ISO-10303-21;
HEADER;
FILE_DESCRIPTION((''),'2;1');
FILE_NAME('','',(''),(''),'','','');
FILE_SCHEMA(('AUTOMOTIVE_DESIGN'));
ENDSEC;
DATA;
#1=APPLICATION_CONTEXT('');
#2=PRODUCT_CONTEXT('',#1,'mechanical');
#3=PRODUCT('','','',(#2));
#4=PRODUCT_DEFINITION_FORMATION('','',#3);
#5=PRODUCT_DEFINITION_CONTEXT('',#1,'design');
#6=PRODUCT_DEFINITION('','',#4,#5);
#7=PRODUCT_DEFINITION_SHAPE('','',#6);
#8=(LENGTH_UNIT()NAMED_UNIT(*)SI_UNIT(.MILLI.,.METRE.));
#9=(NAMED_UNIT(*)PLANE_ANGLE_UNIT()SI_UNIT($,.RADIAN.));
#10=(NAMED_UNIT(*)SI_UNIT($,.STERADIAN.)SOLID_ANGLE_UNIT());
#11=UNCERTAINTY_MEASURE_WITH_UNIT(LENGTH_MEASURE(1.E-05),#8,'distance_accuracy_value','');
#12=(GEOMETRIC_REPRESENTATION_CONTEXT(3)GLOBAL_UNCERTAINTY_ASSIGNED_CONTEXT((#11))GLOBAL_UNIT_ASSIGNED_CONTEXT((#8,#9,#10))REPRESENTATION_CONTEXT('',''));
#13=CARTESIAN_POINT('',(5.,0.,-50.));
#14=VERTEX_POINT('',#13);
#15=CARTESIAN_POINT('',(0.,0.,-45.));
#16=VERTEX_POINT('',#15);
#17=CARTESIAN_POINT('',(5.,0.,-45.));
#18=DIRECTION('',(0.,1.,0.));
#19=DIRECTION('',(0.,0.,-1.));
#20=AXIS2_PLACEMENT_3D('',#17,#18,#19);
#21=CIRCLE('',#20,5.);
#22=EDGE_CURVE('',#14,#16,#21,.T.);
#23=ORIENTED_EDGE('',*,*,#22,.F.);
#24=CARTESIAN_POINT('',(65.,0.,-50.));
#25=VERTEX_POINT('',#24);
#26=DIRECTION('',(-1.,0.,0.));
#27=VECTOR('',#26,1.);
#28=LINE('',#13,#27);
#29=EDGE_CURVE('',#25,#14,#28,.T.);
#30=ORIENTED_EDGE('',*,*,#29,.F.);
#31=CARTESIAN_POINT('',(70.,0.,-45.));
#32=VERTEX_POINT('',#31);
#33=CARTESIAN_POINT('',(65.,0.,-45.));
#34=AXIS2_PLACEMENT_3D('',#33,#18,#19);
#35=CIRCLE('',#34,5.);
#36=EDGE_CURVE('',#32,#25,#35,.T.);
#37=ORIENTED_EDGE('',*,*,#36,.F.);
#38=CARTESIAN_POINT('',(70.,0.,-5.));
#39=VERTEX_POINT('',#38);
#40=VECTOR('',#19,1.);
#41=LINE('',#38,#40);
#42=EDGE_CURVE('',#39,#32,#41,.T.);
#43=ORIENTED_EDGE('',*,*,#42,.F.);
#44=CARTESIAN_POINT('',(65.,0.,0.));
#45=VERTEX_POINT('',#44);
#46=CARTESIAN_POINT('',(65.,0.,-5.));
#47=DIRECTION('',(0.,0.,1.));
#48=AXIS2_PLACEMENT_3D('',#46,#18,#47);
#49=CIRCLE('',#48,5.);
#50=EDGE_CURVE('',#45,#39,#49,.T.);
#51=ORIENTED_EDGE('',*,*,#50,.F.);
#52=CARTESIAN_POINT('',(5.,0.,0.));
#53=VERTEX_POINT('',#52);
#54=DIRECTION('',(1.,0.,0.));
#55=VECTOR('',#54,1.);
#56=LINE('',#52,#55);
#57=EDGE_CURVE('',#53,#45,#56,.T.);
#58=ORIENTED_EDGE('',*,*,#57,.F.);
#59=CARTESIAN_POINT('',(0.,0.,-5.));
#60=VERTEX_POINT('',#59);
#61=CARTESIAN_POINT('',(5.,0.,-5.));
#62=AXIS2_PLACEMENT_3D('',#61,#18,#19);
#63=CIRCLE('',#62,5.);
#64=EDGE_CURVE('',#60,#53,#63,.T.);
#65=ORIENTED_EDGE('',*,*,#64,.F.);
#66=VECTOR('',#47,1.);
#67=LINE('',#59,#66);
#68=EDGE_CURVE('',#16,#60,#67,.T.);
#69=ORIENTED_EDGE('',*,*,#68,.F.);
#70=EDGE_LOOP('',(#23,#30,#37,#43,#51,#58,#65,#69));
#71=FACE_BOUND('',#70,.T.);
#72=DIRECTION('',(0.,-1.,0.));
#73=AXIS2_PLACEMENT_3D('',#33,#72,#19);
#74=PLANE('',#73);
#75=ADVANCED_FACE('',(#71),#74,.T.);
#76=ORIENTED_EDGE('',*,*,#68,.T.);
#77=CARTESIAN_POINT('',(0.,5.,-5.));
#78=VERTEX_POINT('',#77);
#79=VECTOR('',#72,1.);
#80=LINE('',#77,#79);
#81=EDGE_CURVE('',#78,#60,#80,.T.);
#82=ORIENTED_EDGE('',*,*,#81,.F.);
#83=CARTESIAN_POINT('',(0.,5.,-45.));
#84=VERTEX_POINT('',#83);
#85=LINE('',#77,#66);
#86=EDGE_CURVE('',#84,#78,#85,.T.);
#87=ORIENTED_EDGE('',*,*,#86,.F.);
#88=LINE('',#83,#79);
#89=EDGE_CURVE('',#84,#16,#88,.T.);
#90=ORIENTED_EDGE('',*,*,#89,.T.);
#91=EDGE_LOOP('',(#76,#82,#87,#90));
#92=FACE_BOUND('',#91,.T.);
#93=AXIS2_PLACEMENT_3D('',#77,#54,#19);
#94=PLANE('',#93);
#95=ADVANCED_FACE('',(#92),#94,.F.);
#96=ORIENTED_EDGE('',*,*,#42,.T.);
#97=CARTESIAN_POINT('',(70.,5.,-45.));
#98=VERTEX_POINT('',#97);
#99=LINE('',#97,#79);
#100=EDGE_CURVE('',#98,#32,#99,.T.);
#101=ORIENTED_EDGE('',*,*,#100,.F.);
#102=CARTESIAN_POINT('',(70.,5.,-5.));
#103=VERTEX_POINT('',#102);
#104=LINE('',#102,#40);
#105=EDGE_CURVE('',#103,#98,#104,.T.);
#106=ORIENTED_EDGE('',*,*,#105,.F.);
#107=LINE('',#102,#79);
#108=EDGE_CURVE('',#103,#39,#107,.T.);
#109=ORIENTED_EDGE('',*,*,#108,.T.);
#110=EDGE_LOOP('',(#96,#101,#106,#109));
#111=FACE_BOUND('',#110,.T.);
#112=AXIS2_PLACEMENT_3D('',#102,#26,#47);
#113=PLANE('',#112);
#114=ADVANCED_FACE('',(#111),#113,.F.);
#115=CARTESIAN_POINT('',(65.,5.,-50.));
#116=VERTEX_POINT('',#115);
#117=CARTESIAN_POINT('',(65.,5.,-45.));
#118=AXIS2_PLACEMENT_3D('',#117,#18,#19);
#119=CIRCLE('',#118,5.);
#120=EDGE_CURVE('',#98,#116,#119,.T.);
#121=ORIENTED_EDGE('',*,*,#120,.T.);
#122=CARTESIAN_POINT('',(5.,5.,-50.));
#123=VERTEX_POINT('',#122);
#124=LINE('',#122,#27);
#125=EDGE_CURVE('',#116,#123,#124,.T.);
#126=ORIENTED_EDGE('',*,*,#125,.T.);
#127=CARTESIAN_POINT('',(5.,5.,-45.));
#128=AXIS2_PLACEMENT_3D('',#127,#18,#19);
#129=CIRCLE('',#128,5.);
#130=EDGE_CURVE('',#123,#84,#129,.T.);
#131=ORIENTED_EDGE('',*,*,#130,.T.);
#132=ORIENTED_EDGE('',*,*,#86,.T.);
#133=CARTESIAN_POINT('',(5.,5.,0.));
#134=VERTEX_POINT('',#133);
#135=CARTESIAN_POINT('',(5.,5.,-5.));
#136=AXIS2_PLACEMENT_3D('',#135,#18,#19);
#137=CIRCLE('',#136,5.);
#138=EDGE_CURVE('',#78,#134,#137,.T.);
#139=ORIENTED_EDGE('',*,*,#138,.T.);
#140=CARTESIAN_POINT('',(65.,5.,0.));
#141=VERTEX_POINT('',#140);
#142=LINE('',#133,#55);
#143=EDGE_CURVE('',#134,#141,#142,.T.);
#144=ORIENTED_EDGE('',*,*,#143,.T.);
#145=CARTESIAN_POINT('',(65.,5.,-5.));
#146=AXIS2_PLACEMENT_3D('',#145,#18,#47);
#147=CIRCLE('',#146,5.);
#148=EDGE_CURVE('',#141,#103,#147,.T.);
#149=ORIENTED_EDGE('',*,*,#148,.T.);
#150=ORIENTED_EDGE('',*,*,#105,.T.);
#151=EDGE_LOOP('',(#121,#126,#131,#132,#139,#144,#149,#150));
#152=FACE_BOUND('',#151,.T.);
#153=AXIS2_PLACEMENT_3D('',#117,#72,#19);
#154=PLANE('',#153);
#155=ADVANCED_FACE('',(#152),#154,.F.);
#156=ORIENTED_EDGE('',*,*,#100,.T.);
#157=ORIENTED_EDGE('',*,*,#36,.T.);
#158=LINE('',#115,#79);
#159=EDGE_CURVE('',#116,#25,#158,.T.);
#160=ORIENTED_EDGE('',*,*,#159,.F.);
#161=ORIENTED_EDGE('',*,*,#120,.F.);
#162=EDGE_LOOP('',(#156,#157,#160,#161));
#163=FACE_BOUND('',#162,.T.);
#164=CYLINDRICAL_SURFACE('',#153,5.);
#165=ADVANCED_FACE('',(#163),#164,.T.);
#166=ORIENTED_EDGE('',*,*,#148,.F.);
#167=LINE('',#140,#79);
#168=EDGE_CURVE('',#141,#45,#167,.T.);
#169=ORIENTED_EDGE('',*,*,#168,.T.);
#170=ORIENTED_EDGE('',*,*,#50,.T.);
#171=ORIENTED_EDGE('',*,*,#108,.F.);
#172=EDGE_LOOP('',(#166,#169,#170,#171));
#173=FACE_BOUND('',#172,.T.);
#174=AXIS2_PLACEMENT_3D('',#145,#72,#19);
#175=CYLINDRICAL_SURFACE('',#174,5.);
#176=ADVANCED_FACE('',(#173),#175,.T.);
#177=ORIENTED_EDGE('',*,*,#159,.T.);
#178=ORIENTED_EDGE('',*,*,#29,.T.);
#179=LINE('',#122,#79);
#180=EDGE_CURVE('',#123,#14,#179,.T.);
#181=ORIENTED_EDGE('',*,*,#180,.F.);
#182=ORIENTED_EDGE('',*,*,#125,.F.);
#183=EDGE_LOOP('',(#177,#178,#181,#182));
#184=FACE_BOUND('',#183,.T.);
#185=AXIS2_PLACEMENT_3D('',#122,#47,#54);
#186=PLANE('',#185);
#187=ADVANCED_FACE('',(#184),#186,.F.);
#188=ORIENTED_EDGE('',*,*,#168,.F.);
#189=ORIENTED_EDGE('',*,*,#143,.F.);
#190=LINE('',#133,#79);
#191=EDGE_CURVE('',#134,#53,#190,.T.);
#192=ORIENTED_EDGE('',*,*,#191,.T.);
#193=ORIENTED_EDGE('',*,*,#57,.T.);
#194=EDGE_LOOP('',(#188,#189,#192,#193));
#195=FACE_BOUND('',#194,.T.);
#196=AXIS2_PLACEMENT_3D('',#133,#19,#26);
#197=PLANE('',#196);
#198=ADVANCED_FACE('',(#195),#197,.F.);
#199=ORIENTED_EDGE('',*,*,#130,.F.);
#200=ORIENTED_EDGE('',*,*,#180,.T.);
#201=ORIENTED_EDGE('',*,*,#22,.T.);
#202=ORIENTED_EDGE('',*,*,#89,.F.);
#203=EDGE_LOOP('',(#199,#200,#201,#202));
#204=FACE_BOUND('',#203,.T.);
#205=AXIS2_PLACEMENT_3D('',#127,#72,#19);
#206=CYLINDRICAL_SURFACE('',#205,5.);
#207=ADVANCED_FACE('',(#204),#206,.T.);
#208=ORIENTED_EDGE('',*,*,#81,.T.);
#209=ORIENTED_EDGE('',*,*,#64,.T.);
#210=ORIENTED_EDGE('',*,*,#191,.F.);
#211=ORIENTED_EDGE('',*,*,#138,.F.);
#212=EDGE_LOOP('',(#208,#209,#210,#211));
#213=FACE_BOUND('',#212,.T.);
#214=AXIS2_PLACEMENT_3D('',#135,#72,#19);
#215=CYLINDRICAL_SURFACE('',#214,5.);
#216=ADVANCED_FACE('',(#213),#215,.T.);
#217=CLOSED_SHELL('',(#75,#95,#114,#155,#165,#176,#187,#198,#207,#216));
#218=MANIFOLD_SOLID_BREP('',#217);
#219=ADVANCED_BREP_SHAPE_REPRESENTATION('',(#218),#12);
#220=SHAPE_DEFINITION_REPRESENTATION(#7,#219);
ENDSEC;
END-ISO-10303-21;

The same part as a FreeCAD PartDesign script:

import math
import FreeCAD as App
import Part
import Sketcher

V = App.Vector
Q = App.Units.Quantity

doc = App.newDocument("Part")
params = doc.addObject("Spreadsheet::Sheet", "Params")
for row, (alias, value) in enumerate([
    ("sketch1_radius", "5 mm"),
    ("sketch1_width", "60 mm"),
    ("sketch1_height", "40 mm"),
    ("pad1_length", "5 mm"),
], start=1):
    params.set(f"A{row}", alias)
    params.set(f"B{row}", "=" + value)
    params.setAlias(f"B{row}", alias)

body = doc.addObject("PartDesign::Body", "Body")

# Sketch on XZ plane
sketch1 = doc.addObject("Sketcher::SketchObject", "Sketch")
body.addObject(sketch1)
sketch1.AttachmentSupport = (doc.XZ_Plane, [""])
sketch1.MapMode = "FlatFace"
sketch1.addGeometry([
    Part.LineSegment(V(5, 0, 0), V(65, 0, 0)),  # 0
    Part.ArcOfCircle(Part.Circle(V(65, -5, 0), V(0, 0, 1), 5), math.radians(0), math.radians(90)),  # 1
    Part.LineSegment(V(70, -5, 0), V(70, -45, 0)),  # 2
    Part.ArcOfCircle(Part.Circle(V(65, -45, 0), V(0, 0, 1), 5), math.radians(-90), math.radians(0)),  # 3
    Part.LineSegment(V(65, -50, 0), V(5, -50, 0)),  # 4
    Part.ArcOfCircle(Part.Circle(V(5, -45, 0), V(0, 0, 1), 5), math.radians(180), math.radians(270)),  # 5
    Part.LineSegment(V(0, -45, 0), V(0, -5, 0)),  # 6
    Part.ArcOfCircle(Part.Circle(V(5, -5, 0), V(0, 0, 1), 5), math.radians(90), math.radians(180)),  # 7
], False)
sketch1.addConstraint([
    Sketcher.Constraint("Tangent", 0, 2, 1, 2),
    Sketcher.Constraint("Tangent", 1, 1, 2, 1),
    Sketcher.Constraint("Tangent", 2, 2, 3, 2),
    Sketcher.Constraint("Tangent", 3, 1, 4, 1),
    Sketcher.Constraint("Tangent", 4, 2, 5, 2),
    Sketcher.Constraint("Tangent", 5, 1, 6, 1),
    Sketcher.Constraint("Tangent", 6, 2, 7, 2),
    Sketcher.Constraint("Tangent", 7, 1, 0, 1),
    Sketcher.Constraint("Horizontal", 0),
    Sketcher.Constraint("Vertical", 2),
    Sketcher.Constraint("Horizontal", 4),
    Sketcher.Constraint("Vertical", 6),
    Sketcher.Constraint("Equal", 1, 3),
    Sketcher.Constraint("Equal", 3, 5),
    Sketcher.Constraint("Equal", 5, 7),
    Sketcher.Constraint("PointOnObject", 0, 2, -1),
    Sketcher.Constraint("PointOnObject", 5, 1, -2),
    Sketcher.Constraint("Radius", 1, Q("5 mm")),
    Sketcher.Constraint("DistanceX", 0, 1, 0, 2, Q("60 mm")),
    Sketcher.Constraint("DistanceY", 2, 2, 2, 1, Q("40 mm")),
])
sketch1.setExpression("Constraints[17]", "Params.sketch1_radius")
sketch1.setExpression("Constraints[18]", "Params.sketch1_width")
sketch1.setExpression("Constraints[19]", "Params.sketch1_height")
pad1 = doc.addObject("PartDesign::Pad", "Pad")
body.addObject(pad1)
pad1.Profile = sketch1
pad1.setExpression("Length", "Params.pad1_length")
pad1.Reversed = True

doc.recompute()
